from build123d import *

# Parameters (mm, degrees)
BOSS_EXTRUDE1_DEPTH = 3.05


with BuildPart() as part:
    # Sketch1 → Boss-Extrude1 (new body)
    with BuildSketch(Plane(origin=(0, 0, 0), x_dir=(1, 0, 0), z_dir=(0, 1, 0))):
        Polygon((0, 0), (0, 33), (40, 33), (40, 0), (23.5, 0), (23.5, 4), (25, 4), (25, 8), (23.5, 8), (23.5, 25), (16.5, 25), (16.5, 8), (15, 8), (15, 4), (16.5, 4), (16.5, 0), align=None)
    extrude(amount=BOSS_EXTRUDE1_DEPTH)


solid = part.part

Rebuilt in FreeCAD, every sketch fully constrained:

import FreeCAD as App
import Part
import Sketcher

V = App.Vector


def add_polygon(sketch, points):
    """Adds a closed chain of lines whose ends are joined by coincident constraints."""
    first, n = sketch.GeometryCount, len(points)
    for a, b in zip(points, points[1:] + points[:1]):
        sketch.addGeometry(Part.LineSegment(App.Vector(*a, 0), App.Vector(*b, 0)), False)
    for i in range(n):
        sketch.addConstraint(Sketcher.Constraint("Coincident", first + i, 2, first + (i + 1) % n, 1))

doc = App.newDocument("Part")
body = doc.addObject("PartDesign::Body", "Body")

sketch1 = doc.addObject("Sketcher::SketchObject", "Sketch")
body.addObject(sketch1)
sketch1.AttachmentSupport = (doc.XZ_Plane, [""])
sketch1.MapMode = "FlatFace"
add_polygon(sketch1, [(0, -33), (0, 0), (16.5, 0), (16.5, -4), (15, -4), (15, -8), (16.5, -8), (16.5, -25), (23.5, -25), (23.5, -8), (25, -8), (25, -4), (23.5, -4), (23.5, 0), (40, 0), (40, -33)])
sketch1.addConstraint([
    Sketcher.Constraint("Vertical", 0),
    Sketcher.Constraint("Horizontal", 1),
    Sketcher.Constraint("Vertical", 2),
    Sketcher.Constraint("Horizontal", 3),
    Sketcher.Constraint("Vertical", 4),
    Sketcher.Constraint("Horizontal", 5),
    Sketcher.Constraint("Vertical", 6),
    Sketcher.Constraint("Horizontal", 7),
    Sketcher.Constraint("Vertical", 8),
    Sketcher.Constraint("Horizontal", 9),
    Sketcher.Constraint("Vertical", 10),
    Sketcher.Constraint("Horizontal", 11),
    Sketcher.Constraint("Vertical", 12),
    Sketcher.Constraint("Horizontal", 13),
    Sketcher.Constraint("Vertical", 14),
    Sketcher.Constraint("Horizontal", 15),
    Sketcher.Constraint("Coincident", 0, 2, -1, 1),
    Sketcher.Constraint("PointOnObject", 12, 2, -1),
    Sketcher.Constraint("Horizontal", 5, 2, 8, 2),
    Sketcher.Constraint("Horizontal", 3, 2, 10, 2),
    Sketcher.Constraint("Vertical", 2, 2, 5, 2),
    Sketcher.Constraint("Vertical", 8, 2, 11, 2),
    Sketcher.Constraint("Equal", 5, 9),
    Sketcher.Constraint("Equal", 1, 13),
    Sketcher.Constraint("Equal", 2, 4),
    Sketcher.Constraint("DistanceX", 7, 1, 7, 2, 7.0),
    Sketcher.Constraint("DistanceX", 15, 2, 15, 1, 40.0),
    Sketcher.Constraint("DistanceY", 0, 1, 0, 2, 33.0),
    Sketcher.Constraint("DistanceY", 2, 2, 2, 1, 4.0),
    Sketcher.Constraint("DistanceY", 6, 2, 6, 1, 17.0),
    Sketcher.Constraint("DistanceX", 3, 2, 3, 1, 1.5),
])
pad1 = doc.addObject("PartDesign::Pad", "Pad")
body.addObject(pad1)
pad1.Profile = sketch1
pad1.Length = 3.05
pad1.Reversed = True

doc.recompute()
